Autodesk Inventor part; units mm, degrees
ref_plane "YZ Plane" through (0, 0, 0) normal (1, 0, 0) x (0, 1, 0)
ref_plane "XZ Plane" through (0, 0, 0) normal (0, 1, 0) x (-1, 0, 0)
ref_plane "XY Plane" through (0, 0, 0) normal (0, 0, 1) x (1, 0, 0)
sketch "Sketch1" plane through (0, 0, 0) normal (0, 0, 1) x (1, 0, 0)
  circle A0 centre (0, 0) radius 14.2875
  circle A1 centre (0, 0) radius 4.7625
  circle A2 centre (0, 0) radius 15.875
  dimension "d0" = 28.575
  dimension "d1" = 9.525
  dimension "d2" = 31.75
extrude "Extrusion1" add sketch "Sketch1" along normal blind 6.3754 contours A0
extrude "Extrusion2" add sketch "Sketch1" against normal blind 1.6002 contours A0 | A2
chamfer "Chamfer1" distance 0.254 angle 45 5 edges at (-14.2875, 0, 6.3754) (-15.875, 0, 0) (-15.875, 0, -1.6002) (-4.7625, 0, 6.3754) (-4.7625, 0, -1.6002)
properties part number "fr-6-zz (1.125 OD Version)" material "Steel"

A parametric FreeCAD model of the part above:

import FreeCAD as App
import Part
import Sketcher

V = App.Vector
Q = App.Units.Quantity


def edges_at(feature, points):
    """Names of the edges that pass closest to the given points."""
    edges = feature.Shape.Edges
    near = lambda p: min(range(len(edges)), key=lambda i: edges[i].distToShape(Part.Vertex(*p))[0])
    return sorted({f"Edge{near(p) + 1}" for p in points})

doc = App.newDocument("Part")
body = doc.addObject("PartDesign::Body", "Body")

sketch1 = body.newObject("Sketcher::SketchObject", "Sketch")
sketch1.AttachmentSupport = (doc.getObject("XY_Plane"), [""])
sketch1.MapMode = "FlatFace"
sketch1.addGeometry([
    Part.Circle(V(0, 0, 0), V(0, 0, 1), 14.3),
    Part.Circle(V(0, 0, 0), V(0, 0, 1), 4.8),
], False)
sketch1.addConstraint([
    Sketcher.Constraint("Coincident", 0, 3, -1, 1),
    Sketcher.Constraint("Coincident", 1, 3, -1, 1),
    Sketcher.Constraint("Diameter", 0, Q("1.125 in")),
    Sketcher.Constraint("Diameter", 1, Q("0.375 in")),
])
pad1 = body.newObject("PartDesign::Pad", "Pad")
pad1.Profile = sketch1
pad1.Length = Q("0.251 in")

sketch2 = body.newObject("Sketcher::SketchObject", "Sketch001")
sketch2.AttachmentSupport = (doc.getObject("XY_Plane"), [""])
sketch2.MapMode = "FlatFace"
sketch2.addGeometry([
    Part.Circle(V(0, 0, 0), V(0, 0, 1), 15.9),
    Part.Circle(V(0, 0, 0), V(0, 0, 1), 4.8),
], False)
sketch2.addConstraint([
    Sketcher.Constraint("Coincident", 0, 3, -1, 1),
    Sketcher.Constraint("Coincident", 1, 3, -1, 1),
    Sketcher.Constraint("Diameter", 0, Q("1.25 in")),
    Sketcher.Constraint("Diameter", 1, Q("0.375 in")),
])
pad2 = body.newObject("PartDesign::Pad", "Pad001")
pad2.Profile = sketch2
pad2.Length = Q("0.063 in")
pad2.Reversed = True
doc.recompute()

chamfer = body.newObject("PartDesign::Chamfer", "Chamfer")
chamfer.Base = (pad2, edges_at(pad2, [
    (-14.287, 0, 6.375),
    (-15.875, 0, 0),
    (-15.875, 0, -1.6),
    (-4.763, 0, 6.375),
    (-4.763, 0, -1.6),
]))
chamfer.Size = Q("0.01 in")

doc.recompute()
